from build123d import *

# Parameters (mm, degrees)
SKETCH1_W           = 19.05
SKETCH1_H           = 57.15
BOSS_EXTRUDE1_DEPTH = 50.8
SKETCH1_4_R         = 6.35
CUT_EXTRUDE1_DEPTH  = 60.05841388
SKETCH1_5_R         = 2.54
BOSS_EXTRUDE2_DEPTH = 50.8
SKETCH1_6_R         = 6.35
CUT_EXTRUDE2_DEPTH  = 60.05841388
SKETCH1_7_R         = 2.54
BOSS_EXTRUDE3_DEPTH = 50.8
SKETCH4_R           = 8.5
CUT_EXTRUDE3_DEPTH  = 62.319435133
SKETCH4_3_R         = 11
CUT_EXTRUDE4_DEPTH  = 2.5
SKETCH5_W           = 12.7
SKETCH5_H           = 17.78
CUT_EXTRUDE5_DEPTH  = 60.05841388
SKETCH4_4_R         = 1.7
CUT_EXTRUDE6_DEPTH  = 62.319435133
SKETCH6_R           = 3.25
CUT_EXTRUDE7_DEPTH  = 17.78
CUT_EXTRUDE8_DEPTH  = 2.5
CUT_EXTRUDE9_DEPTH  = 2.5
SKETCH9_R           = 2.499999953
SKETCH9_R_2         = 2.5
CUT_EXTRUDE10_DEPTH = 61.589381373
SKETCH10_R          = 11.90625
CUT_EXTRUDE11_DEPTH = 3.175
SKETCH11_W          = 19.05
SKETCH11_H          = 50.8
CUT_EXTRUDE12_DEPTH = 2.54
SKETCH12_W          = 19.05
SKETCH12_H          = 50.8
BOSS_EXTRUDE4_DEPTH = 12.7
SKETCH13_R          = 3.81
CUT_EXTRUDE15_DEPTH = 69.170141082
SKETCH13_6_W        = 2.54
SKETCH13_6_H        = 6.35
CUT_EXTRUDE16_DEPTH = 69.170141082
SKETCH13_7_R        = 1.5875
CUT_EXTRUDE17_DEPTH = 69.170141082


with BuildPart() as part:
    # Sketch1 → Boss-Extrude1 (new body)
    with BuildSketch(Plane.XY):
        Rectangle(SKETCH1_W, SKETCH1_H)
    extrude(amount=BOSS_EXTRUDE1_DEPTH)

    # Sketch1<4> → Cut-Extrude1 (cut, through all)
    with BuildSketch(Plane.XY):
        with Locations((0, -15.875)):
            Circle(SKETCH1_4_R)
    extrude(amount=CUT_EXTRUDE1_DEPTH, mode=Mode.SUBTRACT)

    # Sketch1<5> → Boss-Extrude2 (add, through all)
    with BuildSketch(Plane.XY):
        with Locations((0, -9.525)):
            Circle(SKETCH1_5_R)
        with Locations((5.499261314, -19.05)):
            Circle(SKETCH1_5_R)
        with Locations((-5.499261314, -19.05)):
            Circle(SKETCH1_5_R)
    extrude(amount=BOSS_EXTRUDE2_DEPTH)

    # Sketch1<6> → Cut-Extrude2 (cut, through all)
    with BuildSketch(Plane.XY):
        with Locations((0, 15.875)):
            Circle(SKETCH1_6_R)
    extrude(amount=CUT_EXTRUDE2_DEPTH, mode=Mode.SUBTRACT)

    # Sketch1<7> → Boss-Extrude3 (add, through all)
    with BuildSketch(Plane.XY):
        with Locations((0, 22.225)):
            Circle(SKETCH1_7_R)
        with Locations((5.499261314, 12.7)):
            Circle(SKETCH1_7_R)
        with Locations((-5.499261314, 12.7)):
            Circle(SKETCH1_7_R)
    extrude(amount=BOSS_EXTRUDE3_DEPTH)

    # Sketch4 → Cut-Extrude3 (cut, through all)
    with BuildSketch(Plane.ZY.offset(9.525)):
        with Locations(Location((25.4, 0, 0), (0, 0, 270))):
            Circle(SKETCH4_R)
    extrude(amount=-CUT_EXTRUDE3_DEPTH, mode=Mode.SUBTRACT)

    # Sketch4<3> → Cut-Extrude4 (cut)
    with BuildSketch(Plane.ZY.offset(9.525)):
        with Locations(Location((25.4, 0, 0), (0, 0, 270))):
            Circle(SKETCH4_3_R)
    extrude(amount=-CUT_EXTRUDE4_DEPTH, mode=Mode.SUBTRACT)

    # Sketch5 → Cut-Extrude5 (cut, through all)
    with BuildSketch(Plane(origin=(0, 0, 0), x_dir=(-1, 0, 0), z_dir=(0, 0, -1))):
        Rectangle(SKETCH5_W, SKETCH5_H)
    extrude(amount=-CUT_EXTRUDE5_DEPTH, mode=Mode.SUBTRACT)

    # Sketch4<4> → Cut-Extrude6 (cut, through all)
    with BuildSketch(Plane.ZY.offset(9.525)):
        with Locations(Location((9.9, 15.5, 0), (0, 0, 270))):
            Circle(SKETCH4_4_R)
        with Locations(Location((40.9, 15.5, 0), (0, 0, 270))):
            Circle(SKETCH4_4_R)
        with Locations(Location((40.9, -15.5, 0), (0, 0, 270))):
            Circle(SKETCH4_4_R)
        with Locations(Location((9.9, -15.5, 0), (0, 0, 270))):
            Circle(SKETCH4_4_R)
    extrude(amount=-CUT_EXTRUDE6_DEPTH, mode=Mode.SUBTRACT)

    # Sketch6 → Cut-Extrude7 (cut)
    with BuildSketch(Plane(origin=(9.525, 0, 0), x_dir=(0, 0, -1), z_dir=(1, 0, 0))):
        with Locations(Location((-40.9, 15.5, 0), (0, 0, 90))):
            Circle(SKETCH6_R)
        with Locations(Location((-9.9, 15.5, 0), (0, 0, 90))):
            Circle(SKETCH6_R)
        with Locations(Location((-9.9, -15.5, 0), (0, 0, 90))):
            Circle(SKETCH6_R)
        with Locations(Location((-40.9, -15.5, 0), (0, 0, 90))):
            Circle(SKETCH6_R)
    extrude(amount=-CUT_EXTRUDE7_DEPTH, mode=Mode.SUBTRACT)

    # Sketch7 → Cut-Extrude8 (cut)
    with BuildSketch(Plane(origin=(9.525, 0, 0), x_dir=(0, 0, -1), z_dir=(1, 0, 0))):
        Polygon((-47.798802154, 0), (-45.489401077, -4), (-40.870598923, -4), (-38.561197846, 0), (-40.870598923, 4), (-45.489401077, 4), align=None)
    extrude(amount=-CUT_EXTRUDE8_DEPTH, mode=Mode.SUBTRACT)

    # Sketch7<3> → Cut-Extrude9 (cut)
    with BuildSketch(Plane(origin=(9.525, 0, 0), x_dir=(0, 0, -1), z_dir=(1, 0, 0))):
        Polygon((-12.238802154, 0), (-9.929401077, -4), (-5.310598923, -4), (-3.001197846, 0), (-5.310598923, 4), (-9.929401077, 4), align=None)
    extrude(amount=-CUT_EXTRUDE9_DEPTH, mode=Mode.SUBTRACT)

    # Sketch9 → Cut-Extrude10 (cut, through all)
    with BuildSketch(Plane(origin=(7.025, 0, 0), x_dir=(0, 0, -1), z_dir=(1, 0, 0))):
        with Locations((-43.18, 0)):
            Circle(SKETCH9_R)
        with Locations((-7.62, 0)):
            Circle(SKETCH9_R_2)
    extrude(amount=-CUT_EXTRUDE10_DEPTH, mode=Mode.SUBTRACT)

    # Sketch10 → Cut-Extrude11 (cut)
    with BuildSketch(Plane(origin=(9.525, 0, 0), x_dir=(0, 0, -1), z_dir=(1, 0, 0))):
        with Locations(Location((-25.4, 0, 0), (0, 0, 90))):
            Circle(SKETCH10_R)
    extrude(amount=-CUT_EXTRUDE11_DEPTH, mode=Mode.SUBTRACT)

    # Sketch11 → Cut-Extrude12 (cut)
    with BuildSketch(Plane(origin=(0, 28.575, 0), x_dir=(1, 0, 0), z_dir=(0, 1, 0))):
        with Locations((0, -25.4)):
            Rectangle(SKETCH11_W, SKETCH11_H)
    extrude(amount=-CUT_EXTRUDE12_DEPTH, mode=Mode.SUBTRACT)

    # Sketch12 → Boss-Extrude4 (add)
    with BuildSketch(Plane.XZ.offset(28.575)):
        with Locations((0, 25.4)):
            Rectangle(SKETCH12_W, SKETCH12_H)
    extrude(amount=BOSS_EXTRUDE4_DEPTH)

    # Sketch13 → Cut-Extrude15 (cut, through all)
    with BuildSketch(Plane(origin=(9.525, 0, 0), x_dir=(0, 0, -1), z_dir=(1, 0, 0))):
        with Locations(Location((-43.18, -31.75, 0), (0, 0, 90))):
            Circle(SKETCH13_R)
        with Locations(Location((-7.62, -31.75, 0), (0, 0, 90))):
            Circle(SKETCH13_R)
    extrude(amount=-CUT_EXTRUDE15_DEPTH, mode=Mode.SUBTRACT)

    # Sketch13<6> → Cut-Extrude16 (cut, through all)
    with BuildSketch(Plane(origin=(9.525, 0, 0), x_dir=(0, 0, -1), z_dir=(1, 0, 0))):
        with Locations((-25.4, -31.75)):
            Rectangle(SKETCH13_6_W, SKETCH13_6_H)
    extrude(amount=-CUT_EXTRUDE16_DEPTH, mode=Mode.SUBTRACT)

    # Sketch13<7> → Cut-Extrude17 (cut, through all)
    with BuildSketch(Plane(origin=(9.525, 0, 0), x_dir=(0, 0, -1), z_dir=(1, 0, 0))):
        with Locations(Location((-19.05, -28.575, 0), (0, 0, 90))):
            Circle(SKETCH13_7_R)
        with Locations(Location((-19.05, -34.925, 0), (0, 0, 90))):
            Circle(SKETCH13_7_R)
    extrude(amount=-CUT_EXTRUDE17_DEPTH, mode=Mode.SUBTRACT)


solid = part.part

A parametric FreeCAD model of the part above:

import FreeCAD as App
import Part
import Sketcher
Q = App.Units.Quantity

doc = App.newDocument("Part")
params = doc.addObject("Spreadsheet::Sheet", "Params")
for row, (alias, value) in enumerate([
    ("sketch1_width", "0.75 in"),
    ("sketch1_height", "2.25 in"),
    ("pad1_length", "2 in"),
    ("sketch2_diameter", "0.5 in"),
    ("sketch3_diameter", "0.2 in"),
    ("pad2_length", "2 in"),
    ("sketch4_diameter", "0.5 in"),
    ("sketch5_diameter", "0.2 in"),
    ("pad3_length", "2 in"),
    ("pocket4_length", "2.5 mm"),
    ("sketch8_width", "0.5 in"),
    ("sketch8_height", "0.7 in"),
    ("pocket7_length", "0.7 in"),
    ("pocket8_length", "2.5 mm"),
    ("pocket9_length", "2.5 mm"),
    ("sketch14_diameter", "0.9375 in"),
    ("pocket11_length", "0.125 in"),
    ("sketch15_height", "2 in"),
    ("sketch15_width", "0.75 in"),
    ("pocket12_length", "0.1 in"),
    ("sketch16_height", "2 in"),
    ("sketch16_width", "0.75 in"),
    ("pad4_length", "0.5 in"),
    ("sketch17_diameter", "0.3 in"),
    ("sketch18_height", "0.1 in"),
    ("sketch18_width", "0.25 in"),
    ("sketch19_diameter", "0.125 in"),
], start=1):
    params.set(f"A{row}", alias)
    params.set(f"B{row}", "=" + value)
    params.setAlias(f"B{row}", alias)

body = doc.addObject("PartDesign::Body", "Body")

sketch1 = doc.addObject("Sketcher::SketchObject", "Sketch")
body.addObject(sketch1)
sketch1.AttachmentSupport = (doc.XY_Plane, [""])
sketch1.MapMode = "FlatFace"
sketch1.addGeometry(Part.LineSegment(App.Vector(-10, 29, 0), App.Vector(-10, -29, 0)), False)
sketch1.addGeometry(Part.LineSegment(App.Vector(-10, -29, 0), App.Vector(10, -29, 0)), False)
sketch1.addGeometry(Part.LineSegment(App.Vector(10, -29, 0), App.Vector(10, 29, 0)), False)
sketch1.addGeometry(Part.LineSegment(App.Vector(10, 29, 0), App.Vector(-10, 29, 0)), False)
sketch1.addConstraint(Sketcher.Constraint("Coincident", 0, 2, 1, 1))
sketch1.addConstraint(Sketcher.Constraint("Coincident", 1, 2, 2, 1))
sketch1.addConstraint(Sketcher.Constraint("Coincident", 2, 2, 3, 1))
sketch1.addConstraint(Sketcher.Constraint("Coincident", 3, 2, 0, 1))
sketch1.addConstraint(Sketcher.Constraint("Vertical", 0))
sketch1.addConstraint(Sketcher.Constraint("Horizontal", 1))
sketch1.addConstraint(Sketcher.Constraint("Vertical", 2))
sketch1.addConstraint(Sketcher.Constraint("Horizontal", 3))
sketch1.addConstraint(Sketcher.Constraint("Symmetric", 0, 2, 2, 2, -1, 1))
sketch1.addConstraint(Sketcher.Constraint("DistanceX", 1, 1, 1, 2, Q("0.75 in")))
sketch1.addConstraint(Sketcher.Constraint("DistanceY", 0, 2, 0, 1, Q("2.25 in")))
sketch1.setExpression("Constraints[9]", "Params.sketch1_width")
sketch1.setExpression("Constraints[10]", "Params.sketch1_height")
pad1 = doc.addObject("PartDesign::Pad", "Pad")
body.addObject(pad1)
pad1.Profile = sketch1
pad1.setExpression("Length", "Params.pad1_length")

sketch2 = doc.addObject("Sketcher::SketchObject", "Sketch001")
body.addObject(sketch2)
sketch2.AttachmentSupport = (doc.XY_Plane, [""])
sketch2.MapMode = "FlatFace"
sketch2.addGeometry(Part.Circle(App.Vector(0, -16, 0), App.Vector(0, 0, 1), 6), False)
sketch2.addConstraint(Sketcher.Constraint("PointOnObject", 0, 3, -2))
sketch2.addConstraint(Sketcher.Constraint("Diameter", 0, Q("0.5 in")))
sketch2.addConstraint(Sketcher.Constraint("DistanceY", 0, 3, -1, 1, Q("0.625 in")))
sketch2.setExpression("Constraints[1]", "Params.sketch2_diameter")
pocket1 = doc.addObject("PartDesign::Pocket", "Pocket")
body.addObject(pocket1)
pocket1.Profile = sketch2
pocket1.Type = "ThroughAll"
pocket1.Reversed = True

sketch3 = doc.addObject("Sketcher::SketchObject", "Sketch002")
body.addObject(sketch3)
sketch3.AttachmentSupport = (doc.XY_Plane, [""])
sketch3.MapMode = "FlatFace"
sketch3.addGeometry(Part.Circle(App.Vector(0, -9.5, 0), App.Vector(0, 0, 1), 2.5), False)
sketch3.addGeometry(Part.Circle(App.Vector(5.5, -19.1, 0), App.Vector(0, 0, 1), 2.5), False)
sketch3.addGeometry(Part.Circle(App.Vector(-5.5, -19.1, 0), App.Vector(0, 0, 1), 2.5), False)
sketch3.addConstraint(Sketcher.Constraint("Equal", 0, 1))
sketch3.addConstraint(Sketcher.Constraint("Equal", 1, 2))
sketch3.addConstraint(Sketcher.Constraint("Symmetric", 1, 3, 2, 3, -2))
sketch3.addConstraint(Sketcher.Constraint("PointOnObject", 0, 3, -2))
sketch3.addConstraint(Sketcher.Constraint("Diameter", 0, Q("0.2 in")))
sketch3.addConstraint(Sketcher.Constraint("DistanceY", 1, 3, -1, 1, Q("0.75 in")))
sketch3.addConstraint(Sketcher.Constraint("DistanceY", 0, 3, -1, 1, Q("0.375 in")))
sketch3.addConstraint(Sketcher.Constraint("DistanceX", -1, 1, 1, 3, Q("5.499261 mm")))
sketch3.setExpression("Constraints[4]", "Params.sketch3_diameter")
pad2 = doc.addObject("PartDesign::Pad", "Pad001")
body.addObject(pad2)
pad2.Profile = sketch3
pad2.setExpression("Length", "Params.pad2_length")

sketch4 = doc.addObject("Sketcher::SketchObject", "Sketch003")
body.addObject(sketch4)
sketch4.AttachmentSupport = (doc.XY_Plane, [""])
sketch4.MapMode = "FlatFace"
sketch4.addGeometry(Part.Circle(App.Vector(0, 16, 0), App.Vector(0, 0, 1), 6), False)
sketch4.addConstraint(Sketcher.Constraint("PointOnObject", 0, 3, -2))
sketch4.addConstraint(Sketcher.Constraint("Diameter", 0, Q("0.5 in")))
sketch4.addConstraint(Sketcher.Constraint("DistanceY", -1, 1, 0, 3, Q("0.625 in")))
sketch4.setExpression("Constraints[1]", "Params.sketch4_diameter")
pocket2 = doc.addObject("PartDesign::Pocket", "Pocket001")
body.addObject(pocket2)
pocket2.Profile = sketch4
pocket2.Type = "ThroughAll"
pocket2.Reversed = True

sketch5 = doc.addObject("Sketcher::SketchObject", "Sketch004")
body.addObject(sketch5)
sketch5.AttachmentSupport = (doc.XY_Plane, [""])
sketch5.MapMode = "FlatFace"
sketch5.addGeometry(Part.Circle(App.Vector(0, 22.2, 0), App.Vector(0, 0, 1), 2.5), False)
sketch5.addGeometry(Part.Circle(App.Vector(5.5, 12.7, 0), App.Vector(0, 0, 1), 2.5), False)
sketch5.addGeometry(Part.Circle(App.Vector(-5.5, 12.7, 0), App.Vector(0, 0, 1), 2.5), False)
sketch5.addConstraint(Sketcher.Constraint("Equal", 0, 1))
sketch5.addConstraint(Sketcher.Constraint("Equal", 1, 2))
sketch5.addConstraint(Sketcher.Constraint("Symmetric", 1, 3, 2, 3, -2))
sketch5.addConstraint(Sketcher.Constraint("PointOnObject", 0, 3, -2))
sketch5.addConstraint(Sketcher.Constraint("Diameter", 0, Q("0.2 in")))
sketch5.addConstraint(Sketcher.Constraint("DistanceY", -1, 1, 1, 3, Q("0.5 in")))
sketch5.addConstraint(Sketcher.Constraint("DistanceY", -1, 1, 0, 3, Q("0.875 in")))
sketch5.addConstraint(Sketcher.Constraint("DistanceX", -1, 1, 1, 3, Q("5.499261 mm")))
sketch5.setExpression("Constraints[4]", "Params.sketch5_diameter")
pad3 = doc.addObject("PartDesign::Pad", "Pad002")
body.addObject(pad3)
pad3.Profile = sketch5
pad3.setExpression("Length", "Params.pad3_length")

sketch6 = doc.addObject("Sketcher::SketchObject", "Sketch005")
body.addObject(sketch6)
sketch6.AttachmentSupport = (doc.YZ_Plane, [""])
sketch6.MapMode = "FlatFace"
sketch6.AttachmentOffset = App.Placement(App.Vector(0, 0, -0.375 * 25.4), App.Rotation())
sketch6.addGeometry(Part.Circle(App.Vector(0, 25, 0), App.Vector(0, 0, 1), 8), False)
sketch6.addConstraint(Sketcher.Constraint("PointOnObject", 0, 3, -2))
sketch6.addConstraint(Sketcher.Constraint("DistanceY", -1, 1, 0, 3, Q("1 in")))
sketch6.addConstraint(Sketcher.Constraint("Diameter", 0, Q("17 mm")))
pocket3 = doc.addObject("PartDesign::Pocket", "Pocket002")
body.addObject(pocket3)
pocket3.Profile = sketch6
pocket3.Type = "ThroughAll"
pocket3.Reversed = True

sketch7 = doc.addObject("Sketcher::SketchObject", "Sketch006")
body.addObject(sketch7)
sketch7.AttachmentSupport = (doc.YZ_Plane, [""])
sketch7.MapMode = "FlatFace"
sketch7.AttachmentOffset = App.Placement(App.Vector(0, 0, -0.375 * 25.4), App.Rotation())
sketch7.addGeometry(Part.Circle(App.Vector(0, 25, 0), App.Vector(0, 0, 1), 11), False)
sketch7.addConstraint(Sketcher.Constraint("PointOnObject", 0, 3, -2))
sketch7.addConstraint(Sketcher.Constraint("DistanceY", -1, 1, 0, 3, Q("1 in")))
sketch7.addConstraint(Sketcher.Constraint("Diameter", 0, Q("22 mm")))
pocket4 = doc.addObject("PartDesign::Pocket", "Pocket003")
body.addObject(pocket4)
pocket4.Profile = sketch7
pocket4.setExpression("Length", "Params.pocket4_length")
pocket4.Reversed = True

sketch8 = doc.addObject("Sketcher::SketchObject", "Sketch007")
body.addObject(sketch8)
sketch8.AttachmentSupport = (doc.XY_Plane, [""])
sketch8.MapMode = "FlatFace"
sketch8.addGeometry(Part.LineSegment(App.Vector(6, 9, 0), App.Vector(6, -9, 0)), False)
sketch8.addGeometry(Part.LineSegment(App.Vector(6, -9, 0), App.Vector(-6, -9, 0)), False)
sketch8.addGeometry(Part.LineSegment(App.Vector(-6, -9, 0), App.Vector(-6, 9, 0)), False)
sketch8.addGeometry(Part.LineSegment(App.Vector(-6, 9, 0), App.Vector(6, 9, 0)), False)
sketch8.addConstraint(Sketcher.Constraint("Coincident", 0, 2, 1, 1))
sketch8.addConstraint(Sketcher.Constraint("Coincident", 1, 2, 2, 1))
sketch8.addConstraint(Sketcher.Constraint("Coincident", 2, 2, 3, 1))
sketch8.addConstraint(Sketcher.Constraint("Coincident", 3, 2, 0, 1))
sketch8.addConstraint(Sketcher.Constraint("Vertical", 0))
sketch8.addConstraint(Sketcher.Constraint("Horizontal", 1))
sketch8.addConstraint(Sketcher.Constraint("Vertical", 2))
sketch8.addConstraint(Sketcher.Constraint("Horizontal", 3))
sketch8.addConstraint(Sketcher.Constraint("Symmetric", 0, 2, 2, 2, -1, 1))
sketch8.addConstraint(Sketcher.Constraint("DistanceX", 1, 2, 1, 1, Q("0.5 in")))
sketch8.addConstraint(Sketcher.Constraint("DistanceY", 0, 2, 0, 1, Q("0.7 in")))
sketch8.setExpression("Constraints[9]", "Params.sketch8_width")
sketch8.setExpression("Constraints[10]", "Params.sketch8_height")
pocket5 = doc.addObject("PartDesign::Pocket", "Pocket004")
body.addObject(pocket5)
pocket5.Profile = sketch8
pocket5.Type = "ThroughAll"
pocket5.Reversed = True

sketch9 = doc.addObject("Sketcher::SketchObject", "Sketch008")
body.addObject(sketch9)
sketch9.AttachmentSupport = (doc.YZ_Plane, [""])
sketch9.MapMode = "FlatFace"
sketch9.AttachmentOffset = App.Placement(App.Vector(0, 0, -0.375 * 25.4), App.Rotation())
sketch9.addGeometry(Part.Circle(App.Vector(15.5, 9.9, 0), App.Vector(0, 0, 1), 1.7), False)
sketch9.addGeometry(Part.Circle(App.Vector(15.5, 40.9, 0), App.Vector(0, 0, 1), 1.7), False)
sketch9.addGeometry(Part.Circle(App.Vector(-15.5, 40.9, 0), App.Vector(0, 0, 1), 1.7), False)
sketch9.addGeometry(Part.Circle(App.Vector(-15.5, 9.9, 0), App.Vector(0, 0, 1), 1.7), False)
sketch9.addConstraint(Sketcher.Constraint("Equal", 0, 1))
sketch9.addConstraint(Sketcher.Constraint("Equal", 1, 2))
sketch9.addConstraint(Sketcher.Constraint("Equal", 2, 3))
sketch9.addConstraint(Sketcher.Constraint("Symmetric", 1, 3, 2, 3, -2))
sketch9.addConstraint(Sketcher.Constraint("Symmetric", 0, 3, 3, 3, -2))
sketch9.addConstraint(Sketcher.Constraint("Vertical", 0, 3, 1, 3))
sketch9.addConstraint(Sketcher.Constraint("Diameter", 0, Q("3.4 mm")))
sketch9.addConstraint(Sketcher.Constraint("DistanceX", -1, 1, 0, 3, Q("15.5 mm")))
sketch9.addConstraint(Sketcher.Constraint("DistanceY", -1, 1, 0, 3, Q("9.9 mm")))
sketch9.addConstraint(Sketcher.Constraint("DistanceY", -1, 1, 1, 3, Q("40.9 mm")))
pocket6 = doc.addObject("PartDesign::Pocket", "Pocket005")
body.addObject(pocket6)
pocket6.Profile = sketch9
pocket6.Type = "ThroughAll"
pocket6.Reversed = True

sketch10 = doc.addObject("Sketcher::SketchObject", "Sketch009")
body.addObject(sketch10)
sketch10.AttachmentSupport = (doc.YZ_Plane, [""])
sketch10.MapMode = "FlatFace"
sketch10.AttachmentOffset = App.Placement(App.Vector(0, 0, 0.375 * 25.4), App.Rotation())
sketch10.addGeometry(Part.Circle(App.Vector(15.5, 40.9, 0), App.Vector(0, 0, 1), 3.2), False)
sketch10.addGeometry(Part.Circle(App.Vector(15.5, 9.9, 0), App.Vector(0, 0, 1), 3.2), False)
sketch10.addGeometry(Part.Circle(App.Vector(-15.5, 9.9, 0), App.Vector(0, 0, 1), 3.2), False)
sketch10.addGeometry(Part.Circle(App.Vector(-15.5, 40.9, 0), App.Vector(0, 0, 1), 3.2), False)
sketch10.addConstraint(Sketcher.Constraint("Equal", 0, 1))
sketch10.addConstraint(Sketcher.Constraint("Equal", 1, 2))
sketch10.addConstraint(Sketcher.Constraint("Equal", 2, 3))
sketch10.addConstraint(Sketcher.Constraint("Symmetric", 1, 3, 2, 3, -2))
sketch10.addConstraint(Sketcher.Constraint("Symmetric", 0, 3, 3, 3, -2))
sketch10.addConstraint(Sketcher.Constraint("Vertical", 0, 3, 1, 3))
sketch10.addConstraint(Sketcher.Constraint("Diameter", 0, Q("6.5 mm")))
sketch10.addConstraint(Sketcher.Constraint("DistanceX", -1, 1, 0, 3, Q("15.5 mm")))
sketch10.addConstraint(Sketcher.Constraint("DistanceY", -1, 1, 0, 3, Q("40.9 mm")))
sketch10.addConstraint(Sketcher.Constraint("DistanceY", -1, 1, 1, 3, Q("9.9 mm")))
pocket7 = doc.addObject("PartDesign::Pocket", "Pocket006")
body.addObject(pocket7)
pocket7.Profile = sketch10
pocket7.setExpression("Length", "Params.pocket7_length")

sketch11 = doc.addObject("Sketcher::SketchObject", "Sketch010")
body.addObject(sketch11)
sketch11.AttachmentSupport = (doc.YZ_Plane, [""])
sketch11.MapMode = "FlatFace"
sketch11.AttachmentOffset = App.Placement(App.Vector(0, 0, 0.375 * 25.4), App.Rotation())
sketch11.addGeometry(Part.LineSegment(App.Vector(0, 47.8, 0), App.Vector(-4, 45.5, 0)), False)
sketch11.addGeometry(Part.LineSegment(App.Vector(-4, 45.5, 0), App.Vector(-4, 40.9, 0)), False)
sketch11.addGeometry(Part.LineSegment(App.Vector(-4, 40.9, 0), App.Vector(0, 38.6, 0)), False)
sketch11.addGeometry(Part.LineSegment(App.Vector(0, 38.6, 0), App.Vector(4, 40.9, 0)), False)
sketch11.addGeometry(Part.LineSegment(App.Vector(4, 40.9, 0), App.Vector(4, 45.5, 0)), False)
sketch11.addGeometry(Part.LineSegment(App.Vector(4, 45.5, 0), App.Vector(0, 47.8, 0)), False)
sketch11.addConstraint(Sketcher.Constraint("Coincident", 0, 2, 1, 1))
sketch11.addConstraint(Sketcher.Constraint("Coincident", 1, 2, 2, 1))
sketch11.addConstraint(Sketcher.Constraint("Coincident", 2, 2, 3, 1))
sketch11.addConstraint(Sketcher.Constraint("Coincident", 3, 2, 4, 1))
sketch11.addConstraint(Sketcher.Constraint("Coincident", 4, 2, 5, 1))
sketch11.addConstraint(Sketcher.Constraint("Coincident", 5, 2, 0, 1))
sketch11.addConstraint(Sketcher.Constraint("Vertical", 1))
sketch11.addConstraint(Sketcher.Constraint("Vertical", 4))
sketch11.addConstraint(Sketcher.Constraint("Symmetric", 1, 2, 3, 2, -2))
sketch11.addConstraint(Sketcher.Constraint("PointOnObject", 2, 2, -2))
sketch11.addConstraint(Sketcher.Constraint("PointOnObject", 5, 2, -2))
sketch11.addConstraint(Sketcher.Constraint("Parallel", 0, 3))
sketch11.addConstraint(Sketcher.Constraint("Parallel", 2, 5))
sketch11.addConstraint(Sketcher.Constraint("Angle", 0, Q("-150 deg")))
sketch11.addConstraint(Sketcher.Constraint("DistanceX", 0, 2, -1, 1, Q("4 mm")))
sketch11.addConstraint(Sketcher.Constraint("DistanceY", -1, 1, 0, 2, Q("45.489401 mm")))
sketch11.addConstraint(Sketcher.Constraint("DistanceY", -1, 1, 1, 2, Q("40.870599 mm")))
pocket8 = doc.addObject("PartDesign::Pocket", "Pocket007")
body.addObject(pocket8)
pocket8.Profile = sketch11
pocket8.setExpression("Length", "Params.pocket8_length")

sketch12 = doc.addObject("Sketcher::SketchObject", "Sketch011")
body.addObject(sketch12)
sketch12.AttachmentSupport = (doc.YZ_Plane, [""])
sketch12.MapMode = "FlatFace"
sketch12.AttachmentOffset = App.Placement(App.Vector(0, 0, 0.375 * 25.4), App.Rotation())
sketch12.addGeometry(Part.LineSegment(App.Vector(0, 12.2, 0), App.Vector(-4, 9.9, 0)), False)
sketch12.addGeometry(Part.LineSegment(App.Vector(-4, 9.9, 0), App.Vector(-4, 5.3, 0)), False)
sketch12.addGeometry(Part.LineSegment(App.Vector(-4, 5.3, 0), App.Vector(0, 3, 0)), False)
sketch12.addGeometry(Part.LineSegment(App.Vector(0, 3, 0), App.Vector(4, 5.3, 0)), False)
sketch12.addGeometry(Part.LineSegment(App.Vector(4, 5.3, 0), App.Vector(4, 9.9, 0)), False)
sketch12.addGeometry(Part.LineSegment(App.Vector(4, 9.9, 0), App.Vector(0, 12.2, 0)), False)
sketch12.addConstraint(Sketcher.Constraint("Coincident", 0, 2, 1, 1))
sketch12.addConstraint(Sketcher.Constraint("Coincident", 1, 2, 2, 1))
sketch12.addConstraint(Sketcher.Constraint("Coincident", 2, 2, 3, 1))
sketch12.addConstraint(Sketcher.Constraint("Coincident", 3, 2, 4, 1))
sketch12.addConstraint(Sketcher.Constraint("Coincident", 4, 2, 5, 1))
sketch12.addConstraint(Sketcher.Constraint("Coincident", 5, 2, 0, 1))
sketch12.addConstraint(Sketcher.Constraint("Vertical", 1))
sketch12.addConstraint(Sketcher.Constraint("Vertical", 4))
sketch12.addConstraint(Sketcher.Constraint("Symmetric", 1, 2, 3, 2, -2))
sketch12.addConstraint(Sketcher.Constraint("PointOnObject", 2, 2, -2))
sketch12.addConstraint(Sketcher.Constraint("PointOnObject", 5, 2, -2))
sketch12.addConstraint(Sketcher.Constraint("Parallel", 0, 3))
sketch12.addConstraint(Sketcher.Constraint("Parallel", 2, 5))
sketch12.addConstraint(Sketcher.Constraint("Angle", 0, Q("-150 deg")))
sketch12.addConstraint(Sketcher.Constraint("DistanceX", 0, 2, -1, 1, Q("4 mm")))
sketch12.addConstraint(Sketcher.Constraint("DistanceY", -1, 1, 0, 2, Q("9.929401 mm")))
sketch12.addConstraint(Sketcher.Constraint("DistanceY", -1, 1, 1, 2, Q("5.310599 mm")))
pocket9 = doc.addObject("PartDesign::Pocket", "Pocket008")
body.addObject(pocket9)
pocket9.Profile = sketch12
pocket9.setExpression("Length", "Params.pocket9_length")

sketch13 = doc.addObject("Sketcher::SketchObject", "Sketch012")
body.addObject(sketch13)
sketch13.AttachmentSupport = (doc.YZ_Plane, [""])
sketch13.MapMode = "FlatFace"
sketch13.AttachmentOffset = App.Placement(App.Vector(0, 0, 7.025), App.Rotation())
sketch13.addGeometry(Part.Circle(App.Vector(0, 43.2, 0), App.Vector(0, 0, 1), 2.5), False)
sketch13.addGeometry(Part.Circle(App.Vector(0, 7.6, 0), App.Vector(0, 0, 1), 2.5), False)
sketch13.addConstraint(Sketcher.Constraint("Equal", 0, 1))
sketch13.addConstraint(Sketcher.Constraint("PointOnObject", 0, 3, -2))
sketch13.addConstraint(Sketcher.Constraint("PointOnObject", 1, 3, -2))
sketch13.addConstraint(Sketcher.Constraint("DistanceY", -1, 1, 0, 3, Q("1.7 in")))
sketch13.addConstraint(Sketcher.Constraint("DistanceY", -1, 1, 1, 3, Q("0.3 in")))
sketch13.addConstraint(Sketcher.Constraint("Diameter", 0, Q("5 mm")))
pocket10 = doc.addObject("PartDesign::Pocket", "Pocket009")
body.addObject(pocket10)
pocket10.Profile = sketch13
pocket10.Type = "ThroughAll"

sketch14 = doc.addObject("Sketcher::SketchObject", "Sketch013")
body.addObject(sketch14)
sketch14.AttachmentSupport = (doc.YZ_Plane, [""])
sketch14.MapMode = "FlatFace"
sketch14.AttachmentOffset = App.Placement(App.Vector(0, 0, 0.375 * 25.4), App.Rotation())
sketch14.addGeometry(Part.Circle(App.Vector(0, 25, 0), App.Vector(0, 0, 1), 12), False)
sketch14.addConstraint(Sketcher.Constraint("PointOnObject", 0, 3, -2))
sketch14.addConstraint(Sketcher.Constraint("Diameter", 0, Q("0.9375 in")))
sketch14.addConstraint(Sketcher.Constraint("DistanceY", -1, 1, 0, 3, Q("1 in")))
sketch14.setExpression("Constraints[1]", "Params.sketch14_diameter")
pocket11 = doc.addObject("PartDesign::Pocket", "Pocket010")
body.addObject(pocket11)
pocket11.Profile = sketch14
pocket11.setExpression("Length", "Params.pocket11_length")

sketch15 = doc.addObject("Sketcher::SketchObject", "Sketch014")
body.addObject(sketch15)
sketch15.AttachmentSupport = (doc.XZ_Plane, [""])
sketch15.MapMode = "FlatFace"
sketch15.AttachmentOffset = App.Placement(App.Vector(0, 0, -1.125 * 25.4), App.Rotation())
sketch15.addGeometry(Part.LineSegment(App.Vector(-10, 0, 0), App.Vector(-10, 51, 0)), False)
sketch15.addGeometry(Part.LineSegment(App.Vector(-10, 51, 0), App.Vector(10, 51, 0)), False)
sketch15.addGeometry(Part.LineSegment(App.Vector(10, 51, 0), App.Vector(10, 0, 0)), False)
sketch15.addGeometry(Part.LineSegment(App.Vector(10, 0, 0), App.Vector(-10, 0, 0)), False)
sketch15.addConstraint(Sketcher.Constraint("Coincident", 0, 2, 1, 1))
sketch15.addConstraint(Sketcher.Constraint("Coincident", 1, 2, 2, 1))
sketch15.addConstraint(Sketcher.Constraint("Coincident", 2, 2, 3, 1))
sketch15.addConstraint(Sketcher.Constraint("Coincident", 3, 2, 0, 1))
sketch15.addConstraint(Sketcher.Constraint("Vertical", 0))
sketch15.addConstraint(Sketcher.Constraint("Horizontal", 1))
sketch15.addConstraint(Sketcher.Constraint("Vertical", 2))
sketch15.addConstraint(Sketcher.Constraint("Horizontal", 3))
sketch15.addConstraint(Sketcher.Constraint("Symmetric", 2, 2, 3, 2, -1, 1))
sketch15.addConstraint(Sketcher.Constraint("DistanceY", 0, 1, 0, 2, Q("2 in")))
sketch15.addConstraint(Sketcher.Constraint("DistanceX", 1, 1, 1, 2, Q("0.75 in")))
sketch15.setExpression("Constraints[9]", "Params.sketch15_height")
sketch15.setExpression("Constraints[10]", "Params.sketch15_width")
pocket12 = doc.addObject("PartDesign::Pocket", "Pocket011")
body.addObject(pocket12)
pocket12.Profile = sketch15
pocket12.setExpression("Length", "Params.pocket12_length")
pocket12.Reversed = True

sketch16 = doc.addObject("Sketcher::SketchObject", "Sketch015")
body.addObject(sketch16)
sketch16.AttachmentSupport = (doc.XZ_Plane, [""])
sketch16.MapMode = "FlatFace"
sketch16.AttachmentOffset = App.Placement(App.Vector(0, 0, 1.125 * 25.4), App.Rotation())
sketch16.addGeometry(Part.LineSegment(App.Vector(-10, 51, 0), App.Vector(-10, 0, 0)), False)
sketch16.addGeometry(Part.LineSegment(App.Vector(-10, 0, 0), App.Vector(10, 0, 0)), False)
sketch16.addGeometry(Part.LineSegment(App.Vector(10, 0, 0), App.Vector(10, 51, 0)), False)
sketch16.addGeometry(Part.LineSegment(App.Vector(10, 51, 0), App.Vector(-10, 51, 0)), False)
sketch16.addConstraint(Sketcher.Constraint("Coincident", 0, 2, 1, 1))
sketch16.addConstraint(Sketcher.Constraint("Coincident", 1, 2, 2, 1))
sketch16.addConstraint(Sketcher.Constraint("Coincident", 2, 2, 3, 1))
sketch16.addConstraint(Sketcher.Constraint("Coincident", 3, 2, 0, 1))
sketch16.addConstraint(Sketcher.Constraint("Vertical", 0))
sketch16.addConstraint(Sketcher.Constraint("Horizontal", 1))
sketch16.addConstraint(Sketcher.Constraint("Vertical", 2))
sketch16.addConstraint(Sketcher.Constraint("Horizontal", 3))
sketch16.addConstraint(Sketcher.Constraint("Symmetric", 0, 2, 1, 2, -1, 1))
sketch16.addConstraint(Sketcher.Constraint("DistanceY", 0, 2, 0, 1, Q("2 in")))
sketch16.addConstraint(Sketcher.Constraint("DistanceX", 1, 1, 1, 2, Q("0.75 in")))
sketch16.setExpression("Constraints[9]", "Params.sketch16_height")
sketch16.setExpression("Constraints[10]", "Params.sketch16_width")
pad4 = doc.addObject("PartDesign::Pad", "Pad003")
body.addObject(pad4)
pad4.Profile = sketch16
pad4.setExpression("Length", "Params.pad4_length")

sketch17 = doc.addObject("Sketcher::SketchObject", "Sketch016")
body.addObject(sketch17)
sketch17.AttachmentSupport = (doc.YZ_Plane, [""])
sketch17.MapMode = "FlatFace"
sketch17.AttachmentOffset = App.Placement(App.Vector(0, 0, 0.375 * 25.4), App.Rotation())
sketch17.addGeometry(Part.Circle(App.Vector(-31.8, 43.2, 0), App.Vector(0, 0, 1), 3.8), False)
sketch17.addGeometry(Part.Circle(App.Vector(-31.8, 7.6, 0), App.Vector(0, 0, 1), 3.8), False)
sketch17.addConstraint(Sketcher.Constraint("Equal", 0, 1))
sketch17.addConstraint(Sketcher.Constraint("Vertical", 0, 3, 1, 3))
sketch17.addConstraint(Sketcher.Constraint("Diameter", 0, Q("0.3 in")))
sketch17.addConstraint(Sketcher.Constraint("DistanceY", -1, 1, 0, 3, Q("1.7 in")))
sketch17.addConstraint(Sketcher.Constraint("DistanceY", -1, 1, 1, 3, Q("0.3 in")))
sketch17.addConstraint(Sketcher.Constraint("DistanceX", 0, 3, -1, 1, Q("1.25 in")))
sketch17.setExpression("Constraints[2]", "Params.sketch17_diameter")
pocket13 = doc.addObject("PartDesign::Pocket", "Pocket012")
body.addObject(pocket13)
pocket13.Profile = sketch17
pocket13.Type = "ThroughAll"

sketch18 = doc.addObject("Sketcher::SketchObject", "Sketch017")
body.addObject(sketch18)
sketch18.AttachmentSupport = (doc.YZ_Plane, [""])
sketch18.MapMode = "FlatFace"
sketch18.AttachmentOffset = App.Placement(App.Vector(0, 0, 0.375 * 25.4), App.Rotation())
sketch18.addGeometry(Part.LineSegment(App.Vector(-28.6, 26.7, 0), App.Vector(-34.9, 26.7, 0)), False)
sketch18.addGeometry(Part.LineSegment(App.Vector(-34.9, 26.7, 0), App.Vector(-34.9, 24.1, 0)), False)
sketch18.addGeometry(Part.LineSegment(App.Vector(-34.9, 24.1, 0), App.Vector(-28.6, 24.1, 0)), False)
sketch18.addGeometry(Part.LineSegment(App.Vector(-28.6, 24.1, 0), App.Vector(-28.6, 26.7, 0)), False)
sketch18.addConstraint(Sketcher.Constraint("Coincident", 0, 2, 1, 1))
sketch18.addConstraint(Sketcher.Constraint("Coincident", 1, 2, 2, 1))
sketch18.addConstraint(Sketcher.Constraint("Coincident", 2, 2, 3, 1))
sketch18.addConstraint(Sketcher.Constraint("Coincident", 3, 2, 0, 1))
sketch18.addConstraint(Sketcher.Constraint("Horizontal", 0))
sketch18.addConstraint(Sketcher.Constraint("Vertical", 1))
sketch18.addConstraint(Sketcher.Constraint("Horizontal", 2))
sketch18.addConstraint(Sketcher.Constraint("Vertical", 3))
sketch18.addConstraint(Sketcher.Constraint("DistanceY", 1, 2, 1, 1, Q("0.1 in")))
sketch18.addConstraint(Sketcher.Constraint("DistanceX", 0, 2, 0, 1, Q("0.25 in")))
sketch18.addConstraint(Sketcher.Constraint("DistanceY", -1, 1, 0, 2, Q("1.05 in")))
sketch18.addConstraint(Sketcher.Constraint("DistanceX", 0, 2, -1, 1, Q("1.375 in")))
sketch18.setExpression("Constraints[8]", "Params.sketch18_height")
sketch18.setExpression("Constraints[9]", "Params.sketch18_width")
pocket14 = doc.addObject("PartDesign::Pocket", "Pocket013")
body.addObject(pocket14)
pocket14.Profile = sketch18
pocket14.Type = "ThroughAll"

sketch19 = doc.addObject("Sketcher::SketchObject", "Sketch018")
body.addObject(sketch19)
sketch19.AttachmentSupport = (doc.YZ_Plane, [""])
sketch19.MapMode = "FlatFace"
sketch19.AttachmentOffset = App.Placement(App.Vector(0, 0, 0.375 * 25.4), App.Rotation())
sketch19.addGeometry(Part.Circle(App.Vector(-28.6, 19.1, 0), App.Vector(0, 0, 1), 1.6), False)
sketch19.addGeometry(Part.Circle(App.Vector(-34.9, 19.1, 0), App.Vector(0, 0, 1), 1.6), False)
sketch19.addConstraint(Sketcher.Constraint("Equal", 0, 1))
sketch19.addConstraint(Sketcher.Constraint("Horizontal", 0, 3, 1, 3))
sketch19.addConstraint(Sketcher.Constraint("Diameter", 0, Q("0.125 in")))
sketch19.addConstraint(Sketcher.Constraint("DistanceY", -1, 1, 0, 3, Q("0.75 in")))
sketch19.addConstraint(Sketcher.Constraint("DistanceX", 1, 3, 0, 3, Q("0.25 in")))
sketch19.addConstraint(Sketcher.Constraint("DistanceX", 0, 3, -1, 1, Q("1.125 in")))
sketch19.setExpression("Constraints[2]", "Params.sketch19_diameter")
pocket15 = doc.addObject("PartDesign::Pocket", "Pocket014")
body.addObject(pocket15)
pocket15.Profile = sketch19
pocket15.Type = "ThroughAll"

doc.recompute()
